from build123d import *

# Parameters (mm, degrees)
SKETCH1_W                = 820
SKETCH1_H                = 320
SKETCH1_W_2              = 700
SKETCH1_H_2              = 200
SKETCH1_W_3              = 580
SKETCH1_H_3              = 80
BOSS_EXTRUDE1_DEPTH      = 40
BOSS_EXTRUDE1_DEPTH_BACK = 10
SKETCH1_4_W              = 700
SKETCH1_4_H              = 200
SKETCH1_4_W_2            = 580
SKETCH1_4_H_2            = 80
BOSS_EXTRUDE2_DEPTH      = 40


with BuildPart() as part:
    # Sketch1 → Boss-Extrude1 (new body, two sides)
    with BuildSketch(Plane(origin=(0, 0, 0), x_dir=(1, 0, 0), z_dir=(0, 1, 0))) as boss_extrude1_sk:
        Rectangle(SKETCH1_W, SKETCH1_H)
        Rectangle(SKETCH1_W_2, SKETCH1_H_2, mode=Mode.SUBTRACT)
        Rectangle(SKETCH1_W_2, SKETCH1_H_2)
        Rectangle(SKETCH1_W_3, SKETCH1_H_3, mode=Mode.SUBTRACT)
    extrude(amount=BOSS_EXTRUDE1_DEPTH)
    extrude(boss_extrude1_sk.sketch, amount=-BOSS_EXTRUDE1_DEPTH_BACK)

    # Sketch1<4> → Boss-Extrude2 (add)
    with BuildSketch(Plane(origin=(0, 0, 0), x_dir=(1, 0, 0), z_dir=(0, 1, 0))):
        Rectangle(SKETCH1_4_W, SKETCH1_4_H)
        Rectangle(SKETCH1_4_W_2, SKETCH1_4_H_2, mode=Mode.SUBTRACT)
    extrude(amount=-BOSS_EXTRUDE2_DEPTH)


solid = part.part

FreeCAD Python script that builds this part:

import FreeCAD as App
import Part
import Sketcher
Q = App.Units.Quantity

doc = App.newDocument("Part")
body = doc.addObject("PartDesign::Body", "Body")

# Sketch on XZ plane
sketch1 = doc.addObject("Sketcher::SketchObject", "Sketch")
body.addObject(sketch1)
sketch1.AttachmentSupport = (doc.XZ_Plane, [""])
sketch1.MapMode = "FlatFace"
sketch1.addGeometry([
    Part.LineSegment(App.Vector(-410, -160, 0), App.Vector(-410, 160, 0)),  # 0
    Part.LineSegment(App.Vector(-410, 160, 0), App.Vector(410, 160, 0)),  # 1
    Part.LineSegment(App.Vector(410, 160, 0), App.Vector(410, -160, 0)),  # 2
    Part.LineSegment(App.Vector(410, -160, 0), App.Vector(-410, -160, 0)),  # 3
    Part.LineSegment(App.Vector(290, 40, 0), App.Vector(-290, 40, 0)),  # 4
    Part.LineSegment(App.Vector(-290, 40, 0), App.Vector(-290, -40, 0)),  # 5
    Part.LineSegment(App.Vector(-290, -40, 0), App.Vector(290, -40, 0)),  # 6
    Part.LineSegment(App.Vector(290, -40, 0), App.Vector(290, 40, 0)),  # 7
], False)
sketch1.addConstraint([
    Sketcher.Constraint("Coincident", 0, 2, 1, 1),
    Sketcher.Constraint("Coincident", 1, 2, 2, 1),
    Sketcher.Constraint("Coincident", 2, 2, 3, 1),
    Sketcher.Constraint("Coincident", 3, 2, 0, 1),
    Sketcher.Constraint("Coincident", 4, 2, 5, 1),
    Sketcher.Constraint("Coincident", 5, 2, 6, 1),
    Sketcher.Constraint("Coincident", 6, 2, 7, 1),
    Sketcher.Constraint("Coincident", 7, 2, 4, 1),
    Sketcher.Constraint("Vertical", 0),
    Sketcher.Constraint("Horizontal", 1),
    Sketcher.Constraint("Vertical", 2),
    Sketcher.Constraint("Horizontal", 3),
    Sketcher.Constraint("Horizontal", 4),
    Sketcher.Constraint("Vertical", 5),
    Sketcher.Constraint("Horizontal", 6),
    Sketcher.Constraint("Vertical", 7),
    Sketcher.Constraint("Symmetric", 0, 2, 2, 2, -1, 1),
    Sketcher.Constraint("Symmetric", 4, 2, 6, 2, -1, 1),
    Sketcher.Constraint("DistanceX", 1, 1, 1, 2, Q("820 mm")),
    Sketcher.Constraint("DistanceX", 4, 2, 4, 1, Q("580 mm")),
    Sketcher.Constraint("DistanceY", 0, 1, 0, 2, Q("320 mm")),
    Sketcher.Constraint("DistanceY", 5, 2, 5, 1, Q("80 mm")),
])
pad1 = doc.addObject("PartDesign::Pad", "Pad")
body.addObject(pad1)
pad1.Profile = sketch1
pad1.Type = "TwoLengths"
pad1.Length = 40
pad1.Length2 = 10
pad1.Reversed = True

# Sketch on XZ plane
sketch2 = doc.addObject("Sketcher::SketchObject", "Sketch001")
body.addObject(sketch2)
sketch2.AttachmentSupport = (doc.XZ_Plane, [""])
sketch2.MapMode = "FlatFace"
sketch2.addGeometry([
    Part.LineSegment(App.Vector(-350, -100, 0), App.Vector(-350, 100, 0)),  # 0
    Part.LineSegment(App.Vector(-350, 100, 0), App.Vector(350, 100, 0)),  # 1
    Part.LineSegment(App.Vector(350, 100, 0), App.Vector(350, -100, 0)),  # 2
    Part.LineSegment(App.Vector(350, -100, 0), App.Vector(-350, -100, 0)),  # 3
    Part.LineSegment(App.Vector(290, 40, 0), App.Vector(-290, 40, 0)),  # 4
    Part.LineSegment(App.Vector(-290, 40, 0), App.Vector(-290, -40, 0)),  # 5
    Part.LineSegment(App.Vector(-290, -40, 0), App.Vector(290, -40, 0)),  # 6
    Part.LineSegment(App.Vector(290, -40, 0), App.Vector(290, 40, 0)),  # 7
], False)
sketch2.addConstraint([
    Sketcher.Constraint("Coincident", 0, 2, 1, 1),
    Sketcher.Constraint("Coincident", 1, 2, 2, 1),
    Sketcher.Constraint("Coincident", 2, 2, 3, 1),
    Sketcher.Constraint("Coincident", 3, 2, 0, 1),
    Sketcher.Constraint("Coincident", 4, 2, 5, 1),
    Sketcher.Constraint("Coincident", 5, 2, 6, 1),
    Sketcher.Constraint("Coincident", 6, 2, 7, 1),
    Sketcher.Constraint("Coincident", 7, 2, 4, 1),
    Sketcher.Constraint("Vertical", 0),
    Sketcher.Constraint("Horizontal", 1),
    Sketcher.Constraint("Vertical", 2),
    Sketcher.Constraint("Horizontal", 3),
    Sketcher.Constraint("Horizontal", 4),
    Sketcher.Constraint("Vertical", 5),
    Sketcher.Constraint("Horizontal", 6),
    Sketcher.Constraint("Vertical", 7),
    Sketcher.Constraint("Symmetric", 0, 2, 2, 2, -1, 1),
    Sketcher.Constraint("Symmetric", 4, 2, 6, 2, -1, 1),
    Sketcher.Constraint("DistanceX", 1, 1, 1, 2, Q("700 mm")),
    Sketcher.Constraint("DistanceX", 4, 2, 4, 1, Q("580 mm")),
    Sketcher.Constraint("DistanceY", 0, 1, 0, 2, Q("200 mm")),
    Sketcher.Constraint("DistanceY", 5, 2, 5, 1, Q("80 mm")),
])
pad2 = doc.addObject("PartDesign::Pad", "Pad001")
body.addObject(pad2)
pad2.Profile = sketch2
pad2.Length = 40

doc.recompute()
